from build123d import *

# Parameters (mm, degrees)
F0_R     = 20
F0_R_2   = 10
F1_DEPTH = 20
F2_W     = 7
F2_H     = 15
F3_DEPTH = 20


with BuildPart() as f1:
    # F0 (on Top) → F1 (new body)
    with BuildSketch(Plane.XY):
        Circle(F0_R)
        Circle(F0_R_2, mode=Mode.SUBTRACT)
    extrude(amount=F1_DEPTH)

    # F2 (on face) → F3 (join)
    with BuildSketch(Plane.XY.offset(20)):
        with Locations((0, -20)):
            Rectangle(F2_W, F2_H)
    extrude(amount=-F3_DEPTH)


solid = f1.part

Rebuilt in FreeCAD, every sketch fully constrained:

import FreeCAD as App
import Part
import Sketcher
from FreeCAD import Vector
Q = App.Units.Quantity


def add_polygon(sketch, points):
    """Adds a closed chain of lines whose ends are joined by coincident constraints."""
    first, n = sketch.GeometryCount, len(points)
    for a, b in zip(points, points[1:] + points[:1]):
        sketch.addGeometry(Part.LineSegment(App.Vector(*a, 0), App.Vector(*b, 0)), False)
    for i in range(n):
        sketch.addConstraint(Sketcher.Constraint("Coincident", first + i, 2, first + (i + 1) % n, 1))

doc = App.newDocument("Part")
body = doc.addObject("PartDesign::Body", "Body")

# Sketch on XY plane
sketch1 = body.newObject("Sketcher::SketchObject", "Sketch")
sketch1.AttachmentSupport = (doc.getObject("XY_Plane"), [""])
sketch1.MapMode = "FlatFace"
sketch1.addGeometry([
    Part.Circle(Vector(0, 0, 0), Vector(0, 0, 1), 20),
    Part.Circle(Vector(0, 0, 0), Vector(0, 0, 1), 10),
], False)
sketch1.addConstraint([
    Sketcher.Constraint("Coincident", 0, 3, -1, 1),
    Sketcher.Constraint("Coincident", 1, 3, -1, 1),
    Sketcher.Constraint("Diameter", 0, Q("40 mm")),
    Sketcher.Constraint("Diameter", 1, Q("20 mm")),
])
pad1 = body.newObject("PartDesign::Pad", "Pad")
pad1.Profile = sketch1
pad1.Length = 20

# Sketch on XY plane
sketch2 = body.newObject("Sketcher::SketchObject", "Sketch001")
sketch2.AttachmentSupport = (doc.getObject("XY_Plane"), [""])
sketch2.MapMode = "FlatFace"
sketch2.AttachmentOffset = App.Placement(Vector(0, 0, 20), App.Rotation())
add_polygon(sketch2, [(-4, -12), (-4, -28), (4, -28), (4, -12)])  # lines 0-3
sketch2.addConstraint([
    Sketcher.Constraint("Vertical", 0),
    Sketcher.Constraint("Horizontal", 1),
    Sketcher.Constraint("Vertical", 2),
    Sketcher.Constraint("Horizontal", 3),
    Sketcher.Constraint("DistanceX", 1, 1, 1, 2, Q("7 mm")),
    Sketcher.Constraint("DistanceY", 0, 2, 0, 1, Q("15 mm")),
    Sketcher.Constraint("DistanceX", 0, 2, -1, 1, Q("3.5 mm")),
    Sketcher.Constraint("DistanceY", 0, 2, -1, 1, Q("27.5 mm")),
])
pad2 = body.newObject("PartDesign::Pad", "Pad001")
pad2.Profile = sketch2
pad2.Length = 20
pad2.Reversed = True

doc.recompute()
